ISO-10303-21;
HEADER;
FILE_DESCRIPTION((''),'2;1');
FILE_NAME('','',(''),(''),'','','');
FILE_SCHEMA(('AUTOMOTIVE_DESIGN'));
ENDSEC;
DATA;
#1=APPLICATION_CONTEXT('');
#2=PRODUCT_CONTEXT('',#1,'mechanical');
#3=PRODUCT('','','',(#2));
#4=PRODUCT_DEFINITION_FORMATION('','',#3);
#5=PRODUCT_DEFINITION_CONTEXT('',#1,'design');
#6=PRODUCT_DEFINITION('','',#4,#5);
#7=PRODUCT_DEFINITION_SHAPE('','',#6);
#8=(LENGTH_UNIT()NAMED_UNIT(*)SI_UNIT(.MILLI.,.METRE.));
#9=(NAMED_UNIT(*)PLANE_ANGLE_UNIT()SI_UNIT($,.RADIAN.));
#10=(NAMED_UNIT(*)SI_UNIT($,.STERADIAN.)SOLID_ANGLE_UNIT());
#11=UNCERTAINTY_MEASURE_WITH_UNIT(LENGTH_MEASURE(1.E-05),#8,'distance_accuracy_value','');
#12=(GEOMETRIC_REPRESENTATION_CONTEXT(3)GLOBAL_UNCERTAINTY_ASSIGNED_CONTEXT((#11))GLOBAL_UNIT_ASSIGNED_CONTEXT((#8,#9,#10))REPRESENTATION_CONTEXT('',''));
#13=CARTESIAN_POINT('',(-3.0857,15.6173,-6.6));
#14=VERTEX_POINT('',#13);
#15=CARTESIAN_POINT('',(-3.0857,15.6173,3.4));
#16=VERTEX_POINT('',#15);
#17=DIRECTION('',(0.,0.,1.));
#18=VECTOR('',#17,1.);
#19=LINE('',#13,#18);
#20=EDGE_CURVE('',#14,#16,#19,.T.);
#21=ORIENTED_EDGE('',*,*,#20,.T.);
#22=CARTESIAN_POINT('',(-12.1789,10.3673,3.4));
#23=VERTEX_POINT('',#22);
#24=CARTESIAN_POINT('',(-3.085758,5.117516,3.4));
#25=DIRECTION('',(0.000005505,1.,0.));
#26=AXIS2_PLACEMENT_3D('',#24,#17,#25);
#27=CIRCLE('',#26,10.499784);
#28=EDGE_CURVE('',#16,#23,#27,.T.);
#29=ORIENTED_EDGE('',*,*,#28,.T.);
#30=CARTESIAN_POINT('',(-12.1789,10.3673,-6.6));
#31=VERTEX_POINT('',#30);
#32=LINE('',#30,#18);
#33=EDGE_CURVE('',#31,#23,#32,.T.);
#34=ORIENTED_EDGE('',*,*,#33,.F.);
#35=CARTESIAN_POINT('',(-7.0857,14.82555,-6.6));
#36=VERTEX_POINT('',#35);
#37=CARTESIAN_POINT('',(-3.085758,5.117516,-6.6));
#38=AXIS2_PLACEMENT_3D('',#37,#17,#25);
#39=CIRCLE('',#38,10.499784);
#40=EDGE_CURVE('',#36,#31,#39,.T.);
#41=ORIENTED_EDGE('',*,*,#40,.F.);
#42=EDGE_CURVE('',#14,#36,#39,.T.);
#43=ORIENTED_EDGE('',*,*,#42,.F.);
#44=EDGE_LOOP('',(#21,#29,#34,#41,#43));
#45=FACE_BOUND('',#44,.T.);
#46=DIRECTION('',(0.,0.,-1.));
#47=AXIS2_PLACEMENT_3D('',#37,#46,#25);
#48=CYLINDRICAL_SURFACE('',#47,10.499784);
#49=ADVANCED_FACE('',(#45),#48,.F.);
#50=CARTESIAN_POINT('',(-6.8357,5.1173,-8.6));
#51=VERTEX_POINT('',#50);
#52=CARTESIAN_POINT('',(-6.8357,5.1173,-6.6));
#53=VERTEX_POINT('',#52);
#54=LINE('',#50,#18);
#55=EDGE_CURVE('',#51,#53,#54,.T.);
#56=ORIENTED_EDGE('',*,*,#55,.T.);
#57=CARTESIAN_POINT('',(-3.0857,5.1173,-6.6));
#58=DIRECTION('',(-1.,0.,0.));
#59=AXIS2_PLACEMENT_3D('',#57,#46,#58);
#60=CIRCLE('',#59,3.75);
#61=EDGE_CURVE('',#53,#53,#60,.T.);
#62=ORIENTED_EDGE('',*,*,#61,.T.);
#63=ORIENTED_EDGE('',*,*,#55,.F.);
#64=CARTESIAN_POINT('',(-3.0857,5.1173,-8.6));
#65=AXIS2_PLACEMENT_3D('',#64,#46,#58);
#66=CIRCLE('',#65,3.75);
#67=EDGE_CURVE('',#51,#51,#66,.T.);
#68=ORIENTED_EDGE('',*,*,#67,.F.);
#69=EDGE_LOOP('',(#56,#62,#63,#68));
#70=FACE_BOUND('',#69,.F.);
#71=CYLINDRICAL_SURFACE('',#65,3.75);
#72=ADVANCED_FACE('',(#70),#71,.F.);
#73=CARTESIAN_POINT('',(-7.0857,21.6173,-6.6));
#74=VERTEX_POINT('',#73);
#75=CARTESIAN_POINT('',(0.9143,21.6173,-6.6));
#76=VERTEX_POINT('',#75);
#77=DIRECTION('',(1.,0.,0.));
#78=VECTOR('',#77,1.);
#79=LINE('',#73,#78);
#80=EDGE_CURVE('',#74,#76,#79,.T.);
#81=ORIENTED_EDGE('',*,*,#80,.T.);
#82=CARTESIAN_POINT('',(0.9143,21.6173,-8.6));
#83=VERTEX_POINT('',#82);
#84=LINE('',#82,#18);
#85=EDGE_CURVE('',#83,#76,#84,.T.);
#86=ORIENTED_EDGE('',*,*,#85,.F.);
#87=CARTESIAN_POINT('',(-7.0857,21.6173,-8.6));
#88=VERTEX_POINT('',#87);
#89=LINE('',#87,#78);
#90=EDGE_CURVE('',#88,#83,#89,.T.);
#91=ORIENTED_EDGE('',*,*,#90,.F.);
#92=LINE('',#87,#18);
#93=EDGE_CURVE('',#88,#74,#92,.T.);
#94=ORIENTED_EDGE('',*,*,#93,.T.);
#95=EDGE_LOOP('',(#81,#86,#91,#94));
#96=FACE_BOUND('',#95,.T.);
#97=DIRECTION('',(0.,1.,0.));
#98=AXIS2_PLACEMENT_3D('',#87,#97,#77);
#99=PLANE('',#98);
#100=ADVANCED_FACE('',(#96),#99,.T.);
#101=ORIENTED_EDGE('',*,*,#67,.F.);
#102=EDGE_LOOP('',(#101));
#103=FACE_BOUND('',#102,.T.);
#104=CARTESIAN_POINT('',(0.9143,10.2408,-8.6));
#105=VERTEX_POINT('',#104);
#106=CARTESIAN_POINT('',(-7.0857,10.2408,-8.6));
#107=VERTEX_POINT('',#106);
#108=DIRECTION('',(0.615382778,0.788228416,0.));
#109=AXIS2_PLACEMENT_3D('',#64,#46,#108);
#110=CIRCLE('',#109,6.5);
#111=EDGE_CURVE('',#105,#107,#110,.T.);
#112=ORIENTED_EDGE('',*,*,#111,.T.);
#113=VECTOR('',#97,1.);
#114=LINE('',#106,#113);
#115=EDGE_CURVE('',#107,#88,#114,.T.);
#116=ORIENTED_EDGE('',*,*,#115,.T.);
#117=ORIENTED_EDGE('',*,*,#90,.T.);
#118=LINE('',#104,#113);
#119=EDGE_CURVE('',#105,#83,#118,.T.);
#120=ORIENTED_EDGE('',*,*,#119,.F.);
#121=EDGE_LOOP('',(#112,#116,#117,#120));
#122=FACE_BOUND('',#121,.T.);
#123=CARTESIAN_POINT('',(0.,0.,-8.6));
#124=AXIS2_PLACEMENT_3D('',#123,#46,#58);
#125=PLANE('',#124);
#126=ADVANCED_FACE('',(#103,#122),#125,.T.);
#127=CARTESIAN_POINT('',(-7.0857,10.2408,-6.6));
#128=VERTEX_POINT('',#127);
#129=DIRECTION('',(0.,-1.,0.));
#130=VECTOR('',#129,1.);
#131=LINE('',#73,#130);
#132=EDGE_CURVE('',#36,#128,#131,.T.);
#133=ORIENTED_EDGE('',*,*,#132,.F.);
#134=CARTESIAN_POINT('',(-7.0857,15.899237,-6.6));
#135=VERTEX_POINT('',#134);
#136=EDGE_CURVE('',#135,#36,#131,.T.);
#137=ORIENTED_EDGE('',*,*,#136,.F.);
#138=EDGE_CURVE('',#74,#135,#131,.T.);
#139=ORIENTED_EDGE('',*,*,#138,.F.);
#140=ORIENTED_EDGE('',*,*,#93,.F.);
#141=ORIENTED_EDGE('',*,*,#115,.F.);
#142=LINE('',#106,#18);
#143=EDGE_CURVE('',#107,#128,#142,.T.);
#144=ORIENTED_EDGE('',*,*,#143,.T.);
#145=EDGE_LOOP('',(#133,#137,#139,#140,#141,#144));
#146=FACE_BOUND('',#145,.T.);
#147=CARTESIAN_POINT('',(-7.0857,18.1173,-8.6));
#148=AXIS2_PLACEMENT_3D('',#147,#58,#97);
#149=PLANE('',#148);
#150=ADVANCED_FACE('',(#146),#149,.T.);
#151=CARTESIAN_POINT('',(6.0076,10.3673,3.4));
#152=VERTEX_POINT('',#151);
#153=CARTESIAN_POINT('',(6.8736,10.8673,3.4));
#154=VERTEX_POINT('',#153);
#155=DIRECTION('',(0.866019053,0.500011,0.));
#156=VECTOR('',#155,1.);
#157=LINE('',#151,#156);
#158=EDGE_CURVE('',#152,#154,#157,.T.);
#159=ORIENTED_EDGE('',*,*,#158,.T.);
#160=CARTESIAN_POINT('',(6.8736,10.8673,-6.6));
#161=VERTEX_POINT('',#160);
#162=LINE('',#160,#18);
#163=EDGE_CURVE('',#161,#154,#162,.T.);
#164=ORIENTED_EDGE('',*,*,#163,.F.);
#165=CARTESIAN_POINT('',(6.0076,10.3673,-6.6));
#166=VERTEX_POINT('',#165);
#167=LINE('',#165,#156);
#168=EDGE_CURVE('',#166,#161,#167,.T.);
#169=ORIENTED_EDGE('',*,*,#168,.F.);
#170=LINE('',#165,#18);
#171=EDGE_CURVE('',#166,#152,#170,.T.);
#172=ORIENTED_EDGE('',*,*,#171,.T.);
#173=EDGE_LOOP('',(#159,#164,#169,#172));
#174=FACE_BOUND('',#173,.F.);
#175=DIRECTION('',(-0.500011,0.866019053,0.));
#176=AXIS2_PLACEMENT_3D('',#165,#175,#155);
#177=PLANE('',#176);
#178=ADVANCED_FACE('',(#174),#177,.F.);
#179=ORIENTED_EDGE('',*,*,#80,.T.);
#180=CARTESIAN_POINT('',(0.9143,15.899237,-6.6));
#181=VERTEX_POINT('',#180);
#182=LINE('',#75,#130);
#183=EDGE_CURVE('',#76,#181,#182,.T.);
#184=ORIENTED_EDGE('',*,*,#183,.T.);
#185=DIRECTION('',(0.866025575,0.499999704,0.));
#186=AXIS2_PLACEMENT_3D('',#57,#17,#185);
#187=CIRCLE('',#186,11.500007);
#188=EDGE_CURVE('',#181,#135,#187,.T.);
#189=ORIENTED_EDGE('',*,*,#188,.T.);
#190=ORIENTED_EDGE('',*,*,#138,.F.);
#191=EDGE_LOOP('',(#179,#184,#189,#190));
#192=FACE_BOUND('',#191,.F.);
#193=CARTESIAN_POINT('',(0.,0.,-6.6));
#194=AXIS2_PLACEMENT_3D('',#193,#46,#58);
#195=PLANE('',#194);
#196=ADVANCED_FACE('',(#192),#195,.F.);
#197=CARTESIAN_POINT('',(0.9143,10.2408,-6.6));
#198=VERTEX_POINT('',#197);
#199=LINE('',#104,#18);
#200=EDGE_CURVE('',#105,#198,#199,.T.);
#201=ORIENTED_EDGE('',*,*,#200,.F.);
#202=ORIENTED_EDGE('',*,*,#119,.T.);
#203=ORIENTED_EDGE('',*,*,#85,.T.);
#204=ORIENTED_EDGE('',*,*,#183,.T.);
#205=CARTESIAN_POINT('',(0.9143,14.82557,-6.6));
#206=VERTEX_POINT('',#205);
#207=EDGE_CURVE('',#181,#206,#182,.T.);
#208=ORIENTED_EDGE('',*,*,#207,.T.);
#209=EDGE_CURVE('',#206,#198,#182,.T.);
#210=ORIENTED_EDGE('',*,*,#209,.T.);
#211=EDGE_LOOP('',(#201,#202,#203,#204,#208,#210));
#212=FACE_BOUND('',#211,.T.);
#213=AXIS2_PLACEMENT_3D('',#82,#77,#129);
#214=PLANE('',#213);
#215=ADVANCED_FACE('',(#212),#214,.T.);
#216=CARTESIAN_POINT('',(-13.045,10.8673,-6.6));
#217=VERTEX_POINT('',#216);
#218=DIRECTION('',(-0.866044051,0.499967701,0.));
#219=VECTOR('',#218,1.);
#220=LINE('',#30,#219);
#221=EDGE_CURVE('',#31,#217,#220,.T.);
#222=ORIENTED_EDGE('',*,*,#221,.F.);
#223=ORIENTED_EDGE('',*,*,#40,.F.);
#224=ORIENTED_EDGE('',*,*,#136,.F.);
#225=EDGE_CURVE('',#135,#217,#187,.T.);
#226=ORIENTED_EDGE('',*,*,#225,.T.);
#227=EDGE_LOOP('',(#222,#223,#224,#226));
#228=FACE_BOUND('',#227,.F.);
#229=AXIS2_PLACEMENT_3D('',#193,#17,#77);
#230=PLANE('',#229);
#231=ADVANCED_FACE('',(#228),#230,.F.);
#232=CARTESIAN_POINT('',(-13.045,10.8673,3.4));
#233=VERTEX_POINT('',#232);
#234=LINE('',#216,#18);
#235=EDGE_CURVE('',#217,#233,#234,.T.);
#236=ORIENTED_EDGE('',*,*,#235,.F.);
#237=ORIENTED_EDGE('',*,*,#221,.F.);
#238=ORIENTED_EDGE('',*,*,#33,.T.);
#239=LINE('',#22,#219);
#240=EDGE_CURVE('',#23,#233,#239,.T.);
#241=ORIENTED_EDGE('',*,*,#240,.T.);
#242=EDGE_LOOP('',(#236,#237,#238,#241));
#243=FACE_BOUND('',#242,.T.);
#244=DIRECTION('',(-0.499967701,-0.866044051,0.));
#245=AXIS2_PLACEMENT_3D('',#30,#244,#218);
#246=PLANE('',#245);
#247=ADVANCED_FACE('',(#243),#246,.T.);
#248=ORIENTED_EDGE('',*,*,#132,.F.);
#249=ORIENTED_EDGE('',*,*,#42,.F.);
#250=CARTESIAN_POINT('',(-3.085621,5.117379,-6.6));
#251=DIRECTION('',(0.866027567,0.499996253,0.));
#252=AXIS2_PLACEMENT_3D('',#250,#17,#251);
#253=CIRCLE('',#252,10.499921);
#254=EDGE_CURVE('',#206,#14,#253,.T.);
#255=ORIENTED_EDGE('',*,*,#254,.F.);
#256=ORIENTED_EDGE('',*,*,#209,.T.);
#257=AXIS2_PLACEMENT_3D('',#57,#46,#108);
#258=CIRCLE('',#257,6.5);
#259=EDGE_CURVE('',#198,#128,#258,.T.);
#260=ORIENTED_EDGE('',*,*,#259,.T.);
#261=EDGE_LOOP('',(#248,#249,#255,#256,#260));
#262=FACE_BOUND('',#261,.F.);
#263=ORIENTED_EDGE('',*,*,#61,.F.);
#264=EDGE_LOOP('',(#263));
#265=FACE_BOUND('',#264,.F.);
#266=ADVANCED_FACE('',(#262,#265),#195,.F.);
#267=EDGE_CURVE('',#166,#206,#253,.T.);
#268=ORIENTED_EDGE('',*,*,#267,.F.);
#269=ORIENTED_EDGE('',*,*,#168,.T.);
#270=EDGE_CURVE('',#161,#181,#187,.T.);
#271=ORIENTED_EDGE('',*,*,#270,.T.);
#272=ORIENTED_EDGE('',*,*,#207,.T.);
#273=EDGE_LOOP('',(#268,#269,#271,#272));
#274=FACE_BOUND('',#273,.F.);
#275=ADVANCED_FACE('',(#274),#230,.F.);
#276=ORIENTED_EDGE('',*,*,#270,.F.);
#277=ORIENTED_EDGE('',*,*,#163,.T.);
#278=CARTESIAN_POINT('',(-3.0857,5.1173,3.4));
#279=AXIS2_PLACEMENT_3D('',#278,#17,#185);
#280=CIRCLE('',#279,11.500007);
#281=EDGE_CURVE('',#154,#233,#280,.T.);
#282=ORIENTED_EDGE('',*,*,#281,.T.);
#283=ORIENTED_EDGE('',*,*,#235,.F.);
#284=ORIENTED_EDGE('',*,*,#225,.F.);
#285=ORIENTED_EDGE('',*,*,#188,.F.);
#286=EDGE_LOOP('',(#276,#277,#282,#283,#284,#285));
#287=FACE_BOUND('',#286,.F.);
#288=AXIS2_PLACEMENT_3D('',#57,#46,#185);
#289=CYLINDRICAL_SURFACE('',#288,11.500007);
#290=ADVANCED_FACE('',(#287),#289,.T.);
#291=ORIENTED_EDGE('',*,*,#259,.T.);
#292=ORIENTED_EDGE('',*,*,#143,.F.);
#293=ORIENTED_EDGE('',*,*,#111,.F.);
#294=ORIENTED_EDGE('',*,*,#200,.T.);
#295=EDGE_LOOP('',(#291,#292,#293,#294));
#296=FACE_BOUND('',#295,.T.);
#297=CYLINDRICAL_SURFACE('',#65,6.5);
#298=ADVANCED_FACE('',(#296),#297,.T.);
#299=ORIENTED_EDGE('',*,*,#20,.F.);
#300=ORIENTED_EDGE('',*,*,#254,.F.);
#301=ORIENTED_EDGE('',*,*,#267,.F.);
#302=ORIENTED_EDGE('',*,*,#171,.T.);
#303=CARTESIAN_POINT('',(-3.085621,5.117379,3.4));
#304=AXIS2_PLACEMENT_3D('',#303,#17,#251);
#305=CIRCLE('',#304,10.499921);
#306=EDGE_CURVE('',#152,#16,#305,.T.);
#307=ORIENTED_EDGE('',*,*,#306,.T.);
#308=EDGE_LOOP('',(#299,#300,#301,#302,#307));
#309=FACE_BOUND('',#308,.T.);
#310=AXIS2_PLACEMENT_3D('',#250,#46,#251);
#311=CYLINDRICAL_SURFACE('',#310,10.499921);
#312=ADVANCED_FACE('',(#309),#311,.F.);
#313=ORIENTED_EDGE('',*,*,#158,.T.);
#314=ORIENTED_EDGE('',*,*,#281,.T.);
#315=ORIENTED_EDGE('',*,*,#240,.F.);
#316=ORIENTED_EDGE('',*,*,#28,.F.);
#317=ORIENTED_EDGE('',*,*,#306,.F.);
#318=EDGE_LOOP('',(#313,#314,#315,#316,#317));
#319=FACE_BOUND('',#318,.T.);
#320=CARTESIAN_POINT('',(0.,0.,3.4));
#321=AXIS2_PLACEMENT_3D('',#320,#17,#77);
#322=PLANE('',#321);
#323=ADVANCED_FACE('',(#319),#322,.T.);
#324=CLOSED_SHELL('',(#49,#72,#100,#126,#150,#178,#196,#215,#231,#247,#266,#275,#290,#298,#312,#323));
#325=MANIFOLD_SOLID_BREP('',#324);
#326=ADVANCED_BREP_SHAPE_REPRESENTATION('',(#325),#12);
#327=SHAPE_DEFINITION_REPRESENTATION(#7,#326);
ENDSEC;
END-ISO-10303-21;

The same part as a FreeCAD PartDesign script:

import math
import FreeCAD as App
import Part
import Sketcher

V = App.Vector
Q = App.Units.Quantity


def add_polygon(sketch, points):
    """Adds a closed chain of lines whose ends are joined by coincident constraints."""
    first, n = sketch.GeometryCount, len(points)
    for a, b in zip(points, points[1:] + points[:1]):
        sketch.addGeometry(Part.LineSegment(App.Vector(*a, 0), App.Vector(*b, 0)), False)
    for i in range(n):
        sketch.addConstraint(Sketcher.Constraint("Coincident", first + i, 2, first + (i + 1) % n, 1))

doc = App.newDocument("Part")
params = doc.addObject("Spreadsheet::Sheet", "Params")
for row, (alias, value) in enumerate([
    ("sketch1_radius", "10 mm"),
    ("sketch1_height", "13 mm"),
    ("pad1_length", "2 mm"),
    ("sketch2_diameter", "7.5 mm"),
    ("pocket1_length", "2 mm"),
    ("sketch3_radius", "10 mm"),
    ("sketch3_radius2", "6.5 mm"),
    ("sketch3_height", "13 mm"),
    ("pocket2_length", "2 mm"),
    ("sketch4_height", "3.5 mm"),
    ("sketch4_width", "8 mm"),
    ("pad2_length", "2 mm"),
    ("sketch5_radius", "10.5 mm"),
    ("sketch5_radius2", "11.5 mm"),
    ("pad3_length", "10 mm"),
], start=1):
    params.set(f"A{row}", alias)
    params.set(f"B{row}", "=" + value)
    params.setAlias(f"B{row}", alias)

body = doc.addObject("PartDesign::Body", "Body")

# Sketch on XY plane
sketch1 = body.newObject("Sketcher::SketchObject", "Sketch")
sketch1.AttachmentSupport = (doc.getObject("XY_Plane"), [""])
sketch1.MapMode = "FlatFace"
sketch1.AttachmentOffset = App.Placement(V(0, 0, -6.6), App.Rotation())
sketch1.addGeometry([
    Part.LineSegment(V(-13, 5, 0), V(-13, 18, 0)),
    Part.LineSegment(V(-13, 18, 0), V(7, 18, 0)),
    Part.LineSegment(V(7, 18, 0), V(7, 5, 0)),
    Part.ArcOfCircle(Part.Circle(V(-3, 5, 0), V(0, 0, 1), 10), math.radians(180), math.radians(360)),
], False)
sketch1.addConstraint([
    Sketcher.Constraint("Coincident", 0, 2, 1, 1),
    Sketcher.Constraint("Coincident", 1, 2, 2, 1),
    Sketcher.Constraint("Tangent", 2, 2, 3, 2),
    Sketcher.Constraint("Tangent", 3, 1, 0, 1),
    Sketcher.Constraint("Vertical", 0),
    Sketcher.Constraint("Horizontal", 1),
    Sketcher.Constraint("Vertical", 2),
    Sketcher.Constraint("Radius", 3, 10.0),
    Sketcher.Constraint("DistanceY", 0, 1, 0, 2, 13.0),
    Sketcher.Constraint("DistanceX", 3, 3, -1, 1, 3.0857),
    Sketcher.Constraint("DistanceY", -1, 1, 3, 3, 5.1173),
])
sketch1.setExpression("Constraints[7]", "Params.sketch1_radius")
sketch1.setExpression("Constraints[8]", "Params.sketch1_height")
pad1 = body.newObject("PartDesign::Pad", "Pad")
pad1.Profile = sketch1
pad1.setExpression("Length", "Params.pad1_length")
pad1.Reversed = True

# Sketch on XY plane
sketch2 = body.newObject("Sketcher::SketchObject", "Sketch001")
sketch2.AttachmentSupport = (doc.getObject("XY_Plane"), [""])
sketch2.MapMode = "FlatFace"
sketch2.AttachmentOffset = App.Placement(V(0, 0, -8.6), App.Rotation())
sketch2.addGeometry(Part.Circle(V(-3.1, 5.1, 0), V(0, 0, 1), 3.8), False)
sketch2.addConstraint([
    Sketcher.Constraint("Diameter", 0, 7.5),
    Sketcher.Constraint("DistanceX", 0, 3, -1, 1, 3.0857),
    Sketcher.Constraint("DistanceY", -1, 1, 0, 3, 5.1173),
])
sketch2.setExpression("Constraints[0]", "Params.sketch2_diameter")
pocket1 = body.newObject("PartDesign::Pocket", "Pocket")
pocket1.Profile = sketch2
pocket1.setExpression("Length", "Params.pocket1_length")
pocket1.Reversed = True

# Sketch on XY plane
sketch3 = body.newObject("Sketcher::SketchObject", "Sketch002")
sketch3.AttachmentSupport = (doc.getObject("XY_Plane"), [""])
sketch3.MapMode = "FlatFace"
sketch3.AttachmentOffset = App.Placement(V(0, 0, -8.6), App.Rotation())
sketch3.addGeometry([
    Part.ArcOfCircle(Part.Circle(V(-3, 5, 0), V(0, 0, 1), 10), math.radians(180), math.radians(360)),  # 0
    Part.LineSegment(V(-13, 5, 0), V(-13, 18, 0)),  # 1
    Part.LineSegment(V(-13, 18, 0), V(-7, 18, 0)),  # 2
    Part.LineSegment(V(-7, 18, 0), V(-7, 10, 0)),  # 3
    Part.ArcOfCircle(Part.Circle(V(-3, 5, 0), V(0, 0, 1), 6), math.radians(128), math.radians(412)),  # 4
    Part.LineSegment(V(1, 10, 0), V(1, 18, 0)),  # 5
    Part.LineSegment(V(1, 18, 0), V(7, 18, 0)),  # 6
    Part.LineSegment(V(7, 18, 0), V(7, 5, 0)),  # 7
], False)
sketch3.addConstraint([
    Sketcher.Constraint("Tangent", 0, 1, 1, 1),
    Sketcher.Constraint("Coincident", 1, 2, 2, 1),
    Sketcher.Constraint("Coincident", 2, 2, 3, 1),
    Sketcher.Constraint("Coincident", 3, 2, 4, 1),
    Sketcher.Constraint("Coincident", 4, 2, 5, 1),
    Sketcher.Constraint("Coincident", 5, 2, 6, 1),
    Sketcher.Constraint("Coincident", 6, 2, 7, 1),
    Sketcher.Constraint("Tangent", 7, 2, 0, 2),
    Sketcher.Constraint("Vertical", 1),
    Sketcher.Constraint("Horizontal", 2),
    Sketcher.Constraint("Vertical", 3),
    Sketcher.Constraint("Vertical", 5),
    Sketcher.Constraint("Horizontal", 6),
    Sketcher.Constraint("Vertical", 7),
    Sketcher.Constraint("Coincident", 4, 3, 0, 3),
    Sketcher.Constraint("Horizontal", 3, 2, 4, 2),
    Sketcher.Constraint("Horizontal", 2, 2, 5, 2),
    Sketcher.Constraint("Radius", 0, 10.0),
    Sketcher.Constraint("DistanceX", 2, 2, 0, 3, 4.0),
    Sketcher.Constraint("Radius", 4, 6.5),
    Sketcher.Constraint("DistanceY", 1, 1, 1, 2, 13.0),
    Sketcher.Constraint("DistanceX", 0, 3, -1, 1, 3.0857),
    Sketcher.Constraint("DistanceY", -1, 1, 0, 3, 5.1173),
])
sketch3.setExpression("Constraints[17]", "Params.sketch3_radius")
sketch3.setExpression("Constraints[19]", "Params.sketch3_radius2")
sketch3.setExpression("Constraints[20]", "Params.sketch3_height")
pocket2 = body.newObject("PartDesign::Pocket", "Pocket001")
pocket2.Profile = sketch3
pocket2.setExpression("Length", "Params.pocket2_length")
pocket2.Reversed = True

# Sketch on XY plane
sketch4 = body.newObject("Sketcher::SketchObject", "Sketch003")
sketch4.AttachmentSupport = (doc.getObject("XY_Plane"), [""])
sketch4.MapMode = "FlatFace"
sketch4.AttachmentOffset = App.Placement(V(0, 0, -8.6), App.Rotation())
add_polygon(sketch4, [(0.9, 18.1), (-7.1, 18.1), (-7.1, 21.6), (0.9, 21.6)])  # lines 0-3
sketch4.addConstraint([
    Sketcher.Constraint("Horizontal", 0),
    Sketcher.Constraint("Vertical", 1),
    Sketcher.Constraint("Horizontal", 2),
    Sketcher.Constraint("Vertical", 3),
    Sketcher.Constraint("DistanceY", 1, 1, 1, 2, 3.5),
    Sketcher.Constraint("DistanceX", 0, 2, 0, 1, 8.0),
    Sketcher.Constraint("DistanceX", 0, 2, -1, 1, 7.0857),
    Sketcher.Constraint("DistanceY", -1, 1, 0, 2, 18.1173),
])
sketch4.setExpression("Constraints[8]", "Params.sketch4_height")
sketch4.setExpression("Constraints[9]", "Params.sketch4_width")
pad2 = body.newObject("PartDesign::Pad", "Pad001")
pad2.Profile = sketch4
pad2.setExpression("Length", "Params.pad2_length")

# Sketch on XY plane
sketch5 = body.newObject("Sketcher::SketchObject", "Sketch004")
sketch5.AttachmentSupport = (doc.getObject("XY_Plane"), [""])
sketch5.MapMode = "FlatFace"
sketch5.AttachmentOffset = App.Placement(V(0, 0, -6.6), App.Rotation())
sketch5.addGeometry([
    Part.ArcOfCircle(Part.Circle(V(-3.1, 5.1, 0), V(0, 0, 1), 10.5), math.radians(90), math.radians(150)),  # 0
    Part.ArcOfCircle(Part.Circle(V(-3.1, 5.1, 0), V(0, 0, 1), 10.5), math.radians(30), math.radians(90)),  # 1
    Part.LineSegment(V(6, 10.4, 0), V(6.9, 10.9, 0)),  # 2
    Part.ArcOfCircle(Part.Circle(V(-3.1, 5.1, 0), V(0, 0, 1), 11.5), math.radians(30), math.radians(150)),  # 3
    Part.LineSegment(V(-13, 10.9, 0), V(-12.2, 10.4, 0)),  # 4
], False)
sketch5.addConstraint([
    Sketcher.Constraint("Tangent", 0, 1, 1, 2),
    Sketcher.Constraint("Coincident", 1, 1, 2, 1),
    Sketcher.Constraint("Coincident", 2, 2, 3, 1),
    Sketcher.Constraint("Coincident", 3, 2, 4, 1),
    Sketcher.Constraint("Coincident", 4, 2, 0, 2),
    Sketcher.Constraint("Coincident", 3, 3, 0, 3),
    Sketcher.Constraint("Equal", 0, 1),
    Sketcher.Constraint("Horizontal", 2, 2, 3, 2),
    Sketcher.Constraint("Horizontal", 1, 1, 4, 2),
    Sketcher.Constraint("Vertical", 3, 3, 0, 1),
    Sketcher.Constraint("Radius", 0, 10.5),
    Sketcher.Constraint("Radius", 3, 11.5),
    Sketcher.Constraint("Angle", 2, Q("30.0007 deg")),
    Sketcher.Constraint("DistanceY", 0, 3, 1, 1, 5.25),
    Sketcher.Constraint("DistanceX", 3, 2, -1, 1, 13.045),
    Sketcher.Constraint("DistanceY", -1, 1, 0, 3, 5.1173),
])
sketch5.setExpression("Constraints[10]", "Params.sketch5_radius")
sketch5.setExpression("Constraints[11]", "Params.sketch5_radius2")
pad3 = body.newObject("PartDesign::Pad", "Pad002")
pad3.Profile = sketch5
pad3.setExpression("Length", "Params.pad3_length")

doc.recompute()
